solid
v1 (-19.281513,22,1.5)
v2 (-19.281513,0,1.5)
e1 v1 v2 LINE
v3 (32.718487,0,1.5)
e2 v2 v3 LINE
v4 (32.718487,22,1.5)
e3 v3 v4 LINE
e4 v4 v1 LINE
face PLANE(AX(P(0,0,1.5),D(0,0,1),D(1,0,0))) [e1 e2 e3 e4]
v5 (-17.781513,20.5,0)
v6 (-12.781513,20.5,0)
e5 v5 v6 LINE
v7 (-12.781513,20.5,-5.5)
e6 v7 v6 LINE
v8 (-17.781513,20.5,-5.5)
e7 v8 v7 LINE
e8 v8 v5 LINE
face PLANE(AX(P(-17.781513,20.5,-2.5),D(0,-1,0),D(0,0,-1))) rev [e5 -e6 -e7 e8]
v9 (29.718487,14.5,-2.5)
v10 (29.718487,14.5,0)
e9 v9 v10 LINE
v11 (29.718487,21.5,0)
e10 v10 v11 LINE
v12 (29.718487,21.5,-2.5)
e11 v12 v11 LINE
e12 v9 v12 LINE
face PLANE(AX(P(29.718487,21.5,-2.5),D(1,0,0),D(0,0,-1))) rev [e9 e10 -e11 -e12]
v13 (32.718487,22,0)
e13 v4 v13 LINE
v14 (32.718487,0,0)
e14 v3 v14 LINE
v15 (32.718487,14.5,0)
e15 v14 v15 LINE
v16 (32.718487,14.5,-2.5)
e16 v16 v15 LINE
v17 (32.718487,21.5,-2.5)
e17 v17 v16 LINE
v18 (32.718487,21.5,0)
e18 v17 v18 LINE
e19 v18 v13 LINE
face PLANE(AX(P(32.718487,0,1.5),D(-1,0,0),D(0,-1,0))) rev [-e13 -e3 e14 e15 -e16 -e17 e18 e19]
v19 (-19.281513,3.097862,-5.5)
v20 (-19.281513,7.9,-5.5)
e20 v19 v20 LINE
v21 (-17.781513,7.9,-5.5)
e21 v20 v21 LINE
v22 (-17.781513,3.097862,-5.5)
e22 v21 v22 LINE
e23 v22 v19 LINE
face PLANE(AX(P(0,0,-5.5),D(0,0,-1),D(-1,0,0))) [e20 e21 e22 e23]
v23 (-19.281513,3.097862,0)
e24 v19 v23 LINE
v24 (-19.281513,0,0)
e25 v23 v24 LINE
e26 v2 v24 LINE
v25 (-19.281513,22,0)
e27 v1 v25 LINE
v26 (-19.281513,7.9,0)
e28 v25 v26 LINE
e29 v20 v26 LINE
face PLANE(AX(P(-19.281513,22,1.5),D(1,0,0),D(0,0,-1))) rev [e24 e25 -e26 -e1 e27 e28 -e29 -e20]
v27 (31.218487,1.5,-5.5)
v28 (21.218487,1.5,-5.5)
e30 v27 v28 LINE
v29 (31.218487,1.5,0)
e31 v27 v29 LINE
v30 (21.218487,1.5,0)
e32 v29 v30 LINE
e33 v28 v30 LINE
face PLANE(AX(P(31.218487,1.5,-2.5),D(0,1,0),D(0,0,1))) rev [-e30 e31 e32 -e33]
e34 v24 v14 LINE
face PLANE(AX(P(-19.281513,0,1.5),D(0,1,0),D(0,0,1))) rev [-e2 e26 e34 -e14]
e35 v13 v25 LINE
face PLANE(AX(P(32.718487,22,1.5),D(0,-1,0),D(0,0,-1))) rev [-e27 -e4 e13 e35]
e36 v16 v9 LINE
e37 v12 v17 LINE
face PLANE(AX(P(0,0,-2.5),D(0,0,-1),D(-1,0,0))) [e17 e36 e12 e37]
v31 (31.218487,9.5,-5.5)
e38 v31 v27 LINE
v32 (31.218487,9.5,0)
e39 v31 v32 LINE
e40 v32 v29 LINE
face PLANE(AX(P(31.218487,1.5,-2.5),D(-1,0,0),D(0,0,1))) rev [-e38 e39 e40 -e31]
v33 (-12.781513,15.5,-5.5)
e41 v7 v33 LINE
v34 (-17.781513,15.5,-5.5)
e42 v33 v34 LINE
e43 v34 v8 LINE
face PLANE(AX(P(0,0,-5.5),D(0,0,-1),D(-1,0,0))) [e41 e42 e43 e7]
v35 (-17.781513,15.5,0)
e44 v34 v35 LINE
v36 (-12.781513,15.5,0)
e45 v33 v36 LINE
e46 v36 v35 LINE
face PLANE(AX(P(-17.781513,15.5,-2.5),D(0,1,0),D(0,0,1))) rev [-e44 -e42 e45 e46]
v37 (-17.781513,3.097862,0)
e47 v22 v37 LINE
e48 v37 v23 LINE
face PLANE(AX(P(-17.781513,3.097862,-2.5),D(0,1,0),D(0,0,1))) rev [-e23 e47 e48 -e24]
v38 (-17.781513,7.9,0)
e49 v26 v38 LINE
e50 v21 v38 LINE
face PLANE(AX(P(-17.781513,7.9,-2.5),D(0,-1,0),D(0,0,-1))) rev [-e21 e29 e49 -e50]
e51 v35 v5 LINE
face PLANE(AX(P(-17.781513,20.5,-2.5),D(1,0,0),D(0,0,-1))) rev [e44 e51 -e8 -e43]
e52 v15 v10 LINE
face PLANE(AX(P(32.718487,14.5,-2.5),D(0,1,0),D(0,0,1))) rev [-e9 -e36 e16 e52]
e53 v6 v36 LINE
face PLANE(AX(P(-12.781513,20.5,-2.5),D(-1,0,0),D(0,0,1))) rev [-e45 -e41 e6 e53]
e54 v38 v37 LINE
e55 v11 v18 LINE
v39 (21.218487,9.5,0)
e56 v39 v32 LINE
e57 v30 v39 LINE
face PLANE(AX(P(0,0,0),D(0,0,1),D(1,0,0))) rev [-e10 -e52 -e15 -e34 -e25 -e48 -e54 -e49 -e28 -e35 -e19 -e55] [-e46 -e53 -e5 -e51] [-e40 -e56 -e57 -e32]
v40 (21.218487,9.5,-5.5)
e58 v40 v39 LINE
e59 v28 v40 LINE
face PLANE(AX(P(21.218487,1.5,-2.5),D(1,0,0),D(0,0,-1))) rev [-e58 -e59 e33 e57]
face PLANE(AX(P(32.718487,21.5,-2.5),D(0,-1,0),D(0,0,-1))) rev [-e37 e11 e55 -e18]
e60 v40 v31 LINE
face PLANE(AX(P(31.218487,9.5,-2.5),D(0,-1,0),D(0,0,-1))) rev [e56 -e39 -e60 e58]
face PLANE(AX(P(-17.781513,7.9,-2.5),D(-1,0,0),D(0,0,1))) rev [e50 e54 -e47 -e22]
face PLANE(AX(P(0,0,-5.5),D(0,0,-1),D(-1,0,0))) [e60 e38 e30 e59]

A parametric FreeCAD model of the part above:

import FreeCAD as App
import Part
import Sketcher

doc = App.newDocument("Part")
params = doc.addObject("Spreadsheet::Sheet", "Params")
for row, (alias, value) in enumerate([
    ("sketch1_width", "52 mm"),
    ("sketch1_height", "22 mm"),
    ("pad1_length", "1.5 mm"),
    ("sketch2_width", "5 mm"),
    ("sketch2_width2", "10 mm"),
    ("sketch2_width3", "3 mm"),
    ("sketch2_height", "8 mm"),
    ("sketch2_height2", "7 mm"),
    ("pad2_length", "2.5 mm"),
    ("sketch3_width", "10 mm"),
    ("sketch3_width2", "5 mm"),
    ("sketch3_height", "8 mm"),
    ("sketch3_width3", "1.5 mm"),
    ("pad3_length", "3 mm"),
], start=1):
    params.set(f"A{row}", alias)
    params.set(f"B{row}", "=" + value)
    params.setAlias(f"B{row}", alias)

body = doc.addObject("PartDesign::Body", "Body")

# Sketch on XY plane
sketch1 = body.newObject("Sketcher::SketchObject", "Sketch")
sketch1.AttachmentSupport = (doc.getObject("XY_Plane"), [""])
sketch1.MapMode = "FlatFace"
sketch1.addGeometry([
    Part.LineSegment(App.Vector(-19, 22, 0), App.Vector(-19, 0, 0)),
    Part.LineSegment(App.Vector(-19, 0, 0), App.Vector(33, 0, 0)),
    Part.LineSegment(App.Vector(33, 0, 0), App.Vector(33, 22, 0)),
    Part.LineSegment(App.Vector(33, 22, 0), App.Vector(-19, 22, 0)),
], False)
sketch1.addConstraint([
    Sketcher.Constraint("Coincident", 0, 2, 1, 1),
    Sketcher.Constraint("Coincident", 1, 2, 2, 1),
    Sketcher.Constraint("Coincident", 2, 2, 3, 1),
    Sketcher.Constraint("Coincident", 3, 2, 0, 1),
    Sketcher.Constraint("Vertical", 0),
    Sketcher.Constraint("Horizontal", 1),
    Sketcher.Constraint("Vertical", 2),
    Sketcher.Constraint("Horizontal", 3),
    Sketcher.Constraint("PointOnObject", 0, 2, -1),
    Sketcher.Constraint("DistanceX", 1, 1, 1, 2, 52.0),
    Sketcher.Constraint("DistanceY", 0, 2, 0, 1, 22.0),
    Sketcher.Constraint("DistanceX", 0, 2, -1, 1, 19.281513),
])
sketch1.setExpression("Constraints[9]", "Params.sketch1_width")
sketch1.setExpression("Constraints[10]", "Params.sketch1_height")
pad1 = body.newObject("PartDesign::Pad", "Pad")
pad1.Profile = sketch1
pad1.setExpression("Length", "Params.pad1_length")

# Sketch on XY plane
sketch2 = body.newObject("Sketcher::SketchObject", "Sketch001")
sketch2.AttachmentSupport = (doc.getObject("XY_Plane"), [""])
sketch2.MapMode = "FlatFace"
sketch2.addGeometry([
    Part.LineSegment(App.Vector(-12.8, 20.5, 0), App.Vector(-12.8, 15.5, 0)),  # 0
    Part.LineSegment(App.Vector(-12.8, 15.5, 0), App.Vector(-17.8, 15.5, 0)),  # 1
    Part.LineSegment(App.Vector(-17.8, 15.5, 0), App.Vector(-17.8, 20.5, 0)),  # 2
    Part.LineSegment(App.Vector(-17.8, 20.5, 0), App.Vector(-12.8, 20.5, 0)),  # 3
    Part.LineSegment(App.Vector(31.2, 9.5, 0), App.Vector(31.2, 1.5, 0)),  # 4
    Part.LineSegment(App.Vector(31.2, 1.5, 0), App.Vector(21.2, 1.5, 0)),  # 5
    Part.LineSegment(App.Vector(21.2, 1.5, 0), App.Vector(21.2, 9.5, 0)),  # 6
    Part.LineSegment(App.Vector(21.2, 9.5, 0), App.Vector(31.2, 9.5, 0)),  # 7
    Part.LineSegment(App.Vector(32.7, 21.5, 0), App.Vector(32.7, 14.5, 0)),  # 8
    Part.LineSegment(App.Vector(32.7, 14.5, 0), App.Vector(29.7, 14.5, 0)),  # 9
    Part.LineSegment(App.Vector(29.7, 14.5, 0), App.Vector(29.7, 21.5, 0)),  # 10
    Part.LineSegment(App.Vector(29.7, 21.5, 0), App.Vector(32.7, 21.5, 0)),  # 11
    Part.LineSegment(App.Vector(-17.8, 7.9, 0), App.Vector(-17.8, 3.1, 0)),  # 12
    Part.LineSegment(App.Vector(-17.8, 3.1, 0), App.Vector(-19.3, 3.1, 0)),  # 13
    Part.LineSegment(App.Vector(-19.3, 3.1, 0), App.Vector(-19.3, 7.9, 0)),  # 14
    Part.LineSegment(App.Vector(-19.3, 7.9, 0), App.Vector(-17.8, 7.9, 0)),  # 15
], False)
sketch2.addConstraint([
    Sketcher.Constraint("Coincident", 0, 2, 1, 1),
    Sketcher.Constraint("Coincident", 1, 2, 2, 1),
    Sketcher.Constraint("Coincident", 2, 2, 3, 1),
    Sketcher.Constraint("Coincident", 3, 2, 0, 1),
    Sketcher.Constraint("Coincident", 4, 2, 5, 1),
    Sketcher.Constraint("Coincident", 5, 2, 6, 1),
    Sketcher.Constraint("Coincident", 6, 2, 7, 1),
    Sketcher.Constraint("Coincident", 7, 2, 4, 1),
    Sketcher.Constraint("Coincident", 8, 2, 9, 1),
    Sketcher.Constraint("Coincident", 9, 2, 10, 1),
    Sketcher.Constraint("Coincident", 10, 2, 11, 1),
    Sketcher.Constraint("Coincident", 11, 2, 8, 1),
    Sketcher.Constraint("Coincident", 12, 2, 13, 1),
    Sketcher.Constraint("Coincident", 13, 2, 14, 1),
    Sketcher.Constraint("Coincident", 14, 2, 15, 1),
    Sketcher.Constraint("Coincident", 15, 2, 12, 1),
    Sketcher.Constraint("Vertical", 0),
    Sketcher.Constraint("Horizontal", 1),
    Sketcher.Constraint("Vertical", 2),
    Sketcher.Constraint("Horizontal", 3),
    Sketcher.Constraint("Vertical", 4),
    Sketcher.Constraint("Horizontal", 5),
    Sketcher.Constraint("Vertical", 6),
    Sketcher.Constraint("Horizontal", 7),
    Sketcher.Constraint("Vertical", 8),
    Sketcher.Constraint("Horizontal", 9),
    Sketcher.Constraint("Vertical", 10),
    Sketcher.Constraint("Horizontal", 11),
    Sketcher.Constraint("Vertical", 12),
    Sketcher.Constraint("Horizontal", 13),
    Sketcher.Constraint("Vertical", 14),
    Sketcher.Constraint("Horizontal", 15),
    Sketcher.Constraint("Vertical", 2, 2, 12, 2),
    Sketcher.Constraint("Equal", 3, 0),
    Sketcher.Constraint("DistanceX", 1, 2, 1, 1, 5.0),
    Sketcher.Constraint("DistanceX", 5, 2, 5, 1, 10.0),
    Sketcher.Constraint("DistanceX", 9, 2, 9, 1, 3.0),
    Sketcher.Constraint("DistanceY", 4, 2, 4, 1, 8.0),
    Sketcher.Constraint("DistanceY", 8, 2, 8, 1, 7.0),
    Sketcher.Constraint("DistanceX", 13, 2, 13, 1, 1.5),
    Sketcher.Constraint("DistanceX", 0, 2, 4, 2, 44.0),
    Sketcher.Constraint("DistanceY", 4, 2, 0, 2, 14.0),
    Sketcher.Constraint("DistanceY", 7, 2, 8, 2, 5.0),
    Sketcher.Constraint("DistanceY", -1, 1, 0, 2, 15.5),
    Sketcher.Constraint("DistanceY", -1, 1, 14, 2, 7.9),
    Sketcher.Constraint("DistanceX", 7, 2, 8, 2, 1.5),
    Sketcher.Constraint("DistanceY", 12, 2, 12, 1, 4.802138),
    Sketcher.Constraint("DistanceX", 0, 2, -1, 1, 12.781513),
])
sketch2.setExpression("Constraints[34]", "Params.sketch2_width")
sketch2.setExpression("Constraints[35]", "Params.sketch2_width2")
sketch2.setExpression("Constraints[36]", "Params.sketch2_width3")
sketch2.setExpression("Constraints[37]", "Params.sketch2_height")
sketch2.setExpression("Constraints[38]", "Params.sketch2_height2")
pad2 = body.newObject("PartDesign::Pad", "Pad001")
pad2.Profile = sketch2
pad2.setExpression("Length", "Params.pad2_length")
pad2.Reversed = True

# Sketch on XY plane
sketch3 = body.newObject("Sketcher::SketchObject", "Sketch002")
sketch3.AttachmentSupport = (doc.getObject("XY_Plane"), [""])
sketch3.MapMode = "FlatFace"
sketch3.AttachmentOffset = App.Placement(App.Vector(0, 0, -2.5), App.Rotation())
sketch3.addGeometry([
    Part.LineSegment(App.Vector(31.2, 9.5, 0), App.Vector(31.2, 1.5, 0)),  # 0
    Part.LineSegment(App.Vector(31.2, 1.5, 0), App.Vector(21.2, 1.5, 0)),  # 1
    Part.LineSegment(App.Vector(21.2, 1.5, 0), App.Vector(21.2, 9.5, 0)),  # 2
    Part.LineSegment(App.Vector(21.2, 9.5, 0), App.Vector(31.2, 9.5, 0)),  # 3
    Part.LineSegment(App.Vector(-17.8, 7.9, 0), App.Vector(-17.8, 3.1, 0)),  # 4
    Part.LineSegment(App.Vector(-17.8, 3.1, 0), App.Vector(-19.3, 3.1, 0)),  # 5
    Part.LineSegment(App.Vector(-19.3, 3.1, 0), App.Vector(-19.3, 7.9, 0)),  # 6
    Part.LineSegment(App.Vector(-19.3, 7.9, 0), App.Vector(-17.8, 7.9, 0)),  # 7
    Part.LineSegment(App.Vector(-12.8, 20.5, 0), App.Vector(-12.8, 15.5, 0)),  # 8
    Part.LineSegment(App.Vector(-12.8, 15.5, 0), App.Vector(-17.8, 15.5, 0)),  # 9
    Part.LineSegment(App.Vector(-17.8, 15.5, 0), App.Vector(-17.8, 20.5, 0)),  # 10
    Part.LineSegment(App.Vector(-17.8, 20.5, 0), App.Vector(-12.8, 20.5, 0)),  # 11
], False)
sketch3.addConstraint([
    Sketcher.Constraint("Coincident", 0, 2, 1, 1),
    Sketcher.Constraint("Coincident", 1, 2, 2, 1),
    Sketcher.Constraint("Coincident", 2, 2, 3, 1),
    Sketcher.Constraint("Coincident", 3, 2, 0, 1),
    Sketcher.Constraint("Coincident", 4, 2, 5, 1),
    Sketcher.Constraint("Coincident", 5, 2, 6, 1),
    Sketcher.Constraint("Coincident", 6, 2, 7, 1),
    Sketcher.Constraint("Coincident", 7, 2, 4, 1),
    Sketcher.Constraint("Coincident", 8, 2, 9, 1),
    Sketcher.Constraint("Coincident", 9, 2, 10, 1),
    Sketcher.Constraint("Coincident", 10, 2, 11, 1),
    Sketcher.Constraint("Coincident", 11, 2, 8, 1),
    Sketcher.Constraint("Vertical", 0),
    Sketcher.Constraint("Horizontal", 1),
    Sketcher.Constraint("Vertical", 2),
    Sketcher.Constraint("Horizontal", 3),
    Sketcher.Constraint("Vertical", 4),
    Sketcher.Constraint("Horizontal", 5),
    Sketcher.Constraint("Vertical", 6),
    Sketcher.Constraint("Horizontal", 7),
    Sketcher.Constraint("Vertical", 8),
    Sketcher.Constraint("Horizontal", 9),
    Sketcher.Constraint("Vertical", 10),
    Sketcher.Constraint("Horizontal", 11),
    Sketcher.Constraint("Vertical", 7, 2, 9, 2),
    Sketcher.Constraint("Equal", 11, 8),
    Sketcher.Constraint("DistanceX", 1, 2, 1, 1, 10.0),
    Sketcher.Constraint("DistanceX", 9, 2, 9, 1, 5.0),
    Sketcher.Constraint("DistanceY", 0, 2, 0, 1, 8.0),
    Sketcher.Constraint("DistanceX", 5, 2, 5, 1, 1.5),
    Sketcher.Constraint("DistanceX", 4, 2, 1, 2, 39.0),
    Sketcher.Constraint("DistanceY", 2, 2, 8, 2, 6.0),
    Sketcher.Constraint("DistanceY", -1, 1, 0, 2, 1.5),
    Sketcher.Constraint("DistanceY", -1, 1, 6, 2, 7.9),
    Sketcher.Constraint("DistanceY", 4, 2, 4, 1, 4.802138),
    Sketcher.Constraint("DistanceX", -1, 1, 0, 2, 31.218487),
])
sketch3.setExpression("Constraints[26]", "Params.sketch3_width")
sketch3.setExpression("Constraints[27]", "Params.sketch3_width2")
sketch3.setExpression("Constraints[28]", "Params.sketch3_height")
sketch3.setExpression("Constraints[29]", "Params.sketch3_width3")
pad3 = body.newObject("PartDesign::Pad", "Pad002")
pad3.Profile = sketch3
pad3.setExpression("Length", "Params.pad3_length")
pad3.Reversed = True

doc.recompute()
